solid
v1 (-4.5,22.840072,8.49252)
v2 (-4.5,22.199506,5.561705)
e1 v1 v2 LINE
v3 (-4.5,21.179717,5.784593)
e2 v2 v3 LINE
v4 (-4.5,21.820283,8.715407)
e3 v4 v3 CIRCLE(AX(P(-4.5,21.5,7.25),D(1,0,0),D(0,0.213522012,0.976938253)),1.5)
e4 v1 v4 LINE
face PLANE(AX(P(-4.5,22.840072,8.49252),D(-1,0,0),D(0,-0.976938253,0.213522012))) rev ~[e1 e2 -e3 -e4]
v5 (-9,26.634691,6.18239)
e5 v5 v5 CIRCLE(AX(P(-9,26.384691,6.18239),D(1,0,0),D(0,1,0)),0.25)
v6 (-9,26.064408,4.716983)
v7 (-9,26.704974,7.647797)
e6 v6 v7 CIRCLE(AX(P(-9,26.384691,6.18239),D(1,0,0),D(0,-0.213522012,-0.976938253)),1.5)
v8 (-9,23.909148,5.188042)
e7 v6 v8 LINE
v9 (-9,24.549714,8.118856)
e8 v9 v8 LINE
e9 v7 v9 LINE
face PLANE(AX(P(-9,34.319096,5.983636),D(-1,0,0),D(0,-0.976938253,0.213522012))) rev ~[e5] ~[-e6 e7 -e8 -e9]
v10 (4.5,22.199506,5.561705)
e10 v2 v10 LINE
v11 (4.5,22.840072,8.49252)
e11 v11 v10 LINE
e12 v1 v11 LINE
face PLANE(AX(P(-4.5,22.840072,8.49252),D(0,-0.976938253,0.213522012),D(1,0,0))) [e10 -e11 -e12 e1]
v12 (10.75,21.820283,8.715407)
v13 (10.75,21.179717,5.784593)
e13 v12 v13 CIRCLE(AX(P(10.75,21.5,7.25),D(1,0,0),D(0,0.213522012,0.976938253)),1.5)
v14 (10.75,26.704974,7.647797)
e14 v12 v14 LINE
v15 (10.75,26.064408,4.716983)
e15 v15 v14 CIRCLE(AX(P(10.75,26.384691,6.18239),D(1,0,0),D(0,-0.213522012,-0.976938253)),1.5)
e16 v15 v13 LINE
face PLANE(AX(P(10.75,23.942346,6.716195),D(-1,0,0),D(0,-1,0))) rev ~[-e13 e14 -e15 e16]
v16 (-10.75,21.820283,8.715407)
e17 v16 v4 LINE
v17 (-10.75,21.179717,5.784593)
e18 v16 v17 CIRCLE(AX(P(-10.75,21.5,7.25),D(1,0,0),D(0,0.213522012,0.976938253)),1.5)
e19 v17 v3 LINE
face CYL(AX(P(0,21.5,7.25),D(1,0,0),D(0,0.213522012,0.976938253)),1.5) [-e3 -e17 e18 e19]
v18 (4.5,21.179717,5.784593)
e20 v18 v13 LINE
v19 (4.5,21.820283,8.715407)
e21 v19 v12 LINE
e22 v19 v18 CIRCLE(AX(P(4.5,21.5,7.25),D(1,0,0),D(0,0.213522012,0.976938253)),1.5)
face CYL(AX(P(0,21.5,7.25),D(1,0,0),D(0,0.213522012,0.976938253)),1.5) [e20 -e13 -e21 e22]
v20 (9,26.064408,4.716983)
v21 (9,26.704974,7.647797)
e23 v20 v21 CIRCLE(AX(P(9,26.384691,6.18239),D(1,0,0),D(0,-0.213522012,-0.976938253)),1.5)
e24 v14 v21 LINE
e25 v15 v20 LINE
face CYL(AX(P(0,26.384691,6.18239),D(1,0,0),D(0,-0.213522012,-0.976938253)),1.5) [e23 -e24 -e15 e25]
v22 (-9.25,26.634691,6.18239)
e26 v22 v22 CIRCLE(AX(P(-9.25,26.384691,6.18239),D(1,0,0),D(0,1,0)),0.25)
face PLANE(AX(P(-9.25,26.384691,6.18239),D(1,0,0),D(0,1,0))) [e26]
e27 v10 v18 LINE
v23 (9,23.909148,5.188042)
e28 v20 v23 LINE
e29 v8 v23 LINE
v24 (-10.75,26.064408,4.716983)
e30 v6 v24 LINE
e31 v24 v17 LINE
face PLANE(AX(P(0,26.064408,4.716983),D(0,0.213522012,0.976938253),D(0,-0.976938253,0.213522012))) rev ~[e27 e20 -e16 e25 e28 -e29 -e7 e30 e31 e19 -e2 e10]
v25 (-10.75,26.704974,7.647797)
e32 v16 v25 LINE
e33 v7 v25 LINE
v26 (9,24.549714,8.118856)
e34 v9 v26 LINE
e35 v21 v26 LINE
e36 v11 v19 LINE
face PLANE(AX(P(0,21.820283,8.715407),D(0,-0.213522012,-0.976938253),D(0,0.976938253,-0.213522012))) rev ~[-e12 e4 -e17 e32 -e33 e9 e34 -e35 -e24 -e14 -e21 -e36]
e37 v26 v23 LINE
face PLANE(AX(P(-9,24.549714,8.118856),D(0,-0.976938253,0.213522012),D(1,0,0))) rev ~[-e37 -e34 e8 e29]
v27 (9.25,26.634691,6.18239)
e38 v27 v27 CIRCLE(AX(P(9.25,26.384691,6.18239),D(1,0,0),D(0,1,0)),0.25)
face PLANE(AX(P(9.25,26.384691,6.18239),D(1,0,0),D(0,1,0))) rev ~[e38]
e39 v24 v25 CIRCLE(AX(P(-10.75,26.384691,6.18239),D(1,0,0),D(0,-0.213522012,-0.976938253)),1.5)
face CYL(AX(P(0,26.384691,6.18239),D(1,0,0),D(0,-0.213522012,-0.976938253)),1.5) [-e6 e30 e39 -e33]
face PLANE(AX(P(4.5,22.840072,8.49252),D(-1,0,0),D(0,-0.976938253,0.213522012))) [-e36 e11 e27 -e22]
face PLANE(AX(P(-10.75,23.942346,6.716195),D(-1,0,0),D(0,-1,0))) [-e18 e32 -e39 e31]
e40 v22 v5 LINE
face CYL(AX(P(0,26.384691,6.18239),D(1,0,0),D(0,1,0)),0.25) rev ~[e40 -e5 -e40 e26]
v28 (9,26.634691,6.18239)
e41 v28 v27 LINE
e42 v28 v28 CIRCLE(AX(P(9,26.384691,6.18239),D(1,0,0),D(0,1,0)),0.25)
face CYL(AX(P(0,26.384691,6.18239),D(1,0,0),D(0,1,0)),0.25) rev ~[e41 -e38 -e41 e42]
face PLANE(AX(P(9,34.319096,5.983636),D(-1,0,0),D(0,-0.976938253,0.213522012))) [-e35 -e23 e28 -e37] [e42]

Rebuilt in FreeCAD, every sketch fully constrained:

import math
import FreeCAD as App
import Part
import Sketcher


def add_polygon(sketch, points):
    """Adds a closed chain of lines whose ends are joined by coincident constraints."""
    first, n = sketch.GeometryCount, len(points)
    for a, b in zip(points, points[1:] + points[:1]):
        sketch.addGeometry(Part.LineSegment(App.Vector(*a, 0), App.Vector(*b, 0)), False)
    for i in range(n):
        sketch.addConstraint(Sketcher.Constraint("Coincident", first + i, 2, first + (i + 1) % n, 1))

doc = App.newDocument("Part")
params = doc.addObject("Spreadsheet::Sheet", "Params")
for row, (alias, value) in enumerate([
    ("sketch1_radius", "1.5 mm"),
    ("sketch1_length", "5 mm"),
    ("pad1_length", "21.5 mm"),
    ("sketch2_width", "10 mm"),
    ("sketch2_height", "9 mm"),
    ("sketch2_height2", "18 mm"),
    ("sketch2_width2", "20.5 mm"),
    ("pocket1_length", "5 mm"),
    ("sketch3_diameter", "0.5 mm"),
    ("pocket2_length", "18.5 mm"),
], start=1):
    params.set(f"A{row}", alias)
    params.set(f"B{row}", "=" + value)
    params.setAlias(f"B{row}", alias)

body = doc.addObject("PartDesign::Body", "Body")

sketch1 = body.newObject("Sketcher::SketchObject", "Sketch")
sketch1.AttachmentSupport = (doc.getObject("YZ_Plane"), [""])
sketch1.MapMode = "FlatFace"
sketch1.addGeometry([
    Part.LineSegment(App.Vector(26.7, 7.6, 0), App.Vector(21.8, 8.7, 0)),
    Part.ArcOfCircle(Part.Circle(App.Vector(21.5, 7.2, 0), App.Vector(0, 0, 1), 1.5), math.radians(78), math.radians(258)),
    Part.LineSegment(App.Vector(21.2, 5.8, 0), App.Vector(26.1, 4.7, 0)),
    Part.ArcOfCircle(Part.Circle(App.Vector(26.4, 6.2, 0), App.Vector(0, 0, 1), 1.5), math.radians(-102), math.radians(78)),
], False)
sketch1.addConstraint([
    Sketcher.Constraint("Tangent", 0, 2, 1, 1),
    Sketcher.Constraint("Tangent", 1, 2, 2, 1),
    Sketcher.Constraint("Tangent", 2, 2, 3, 1),
    Sketcher.Constraint("Tangent", 3, 2, 0, 1),
    Sketcher.Constraint("Equal", 1, 3),
    Sketcher.Constraint("Radius", 1, 1.5),
    Sketcher.Constraint("Distance", 0, 5.0),
    Sketcher.Constraint("DistanceX", -1, 1, 1, 3, 21.5),
    Sketcher.Constraint("DistanceY", -1, 1, 1, 3, 7.25),
    Sketcher.Constraint("DistanceX", -1, 1, 3, 3, 26.384691),
])
sketch1.setExpression("Constraints[5]", "Params.sketch1_radius")
sketch1.setExpression("Constraints[6]", "Params.sketch1_length")
pad1 = body.newObject("PartDesign::Pad", "Pad")
pad1.Profile = sketch1
pad1.setExpression("Length", "Params.pad1_length")
pad1.Midplane = True

sketch2 = body.newObject("Sketcher::SketchObject", "Sketch001")
sketch2.Placement = App.Placement(App.Vector(0, 2.812838, 12.869721), App.Rotation(App.Vector(0, -0.976938253, 0.213522013), App.Vector(1, 0, 0), App.Vector(0, 0.213522013, 0.976938253), "ZXY"))
add_polygon(sketch2, [(-21, 5), (-21, -5), (0, -5), (0, 5)])
add_polygon(sketch2, [(-32, 9), (-32, -9), (-22, -9), (-22, 9)])
sketch2.addConstraint([
    Sketcher.Constraint("Vertical", 0),
    Sketcher.Constraint("Horizontal", 1),
    Sketcher.Constraint("Vertical", 2),
    Sketcher.Constraint("Horizontal", 3),
    Sketcher.Constraint("Vertical", 4),
    Sketcher.Constraint("Horizontal", 5),
    Sketcher.Constraint("Vertical", 6),
    Sketcher.Constraint("Horizontal", 7),
    Sketcher.Constraint("Symmetric", 1, 2, 2, 2, -1, 1),
    Sketcher.Constraint("DistanceX", 5, 1, 5, 2, 10.0),
    Sketcher.Constraint("DistanceY", 0, 2, 0, 1, 9.0),
    Sketcher.Constraint("DistanceY", 4, 2, 4, 1, 18.0),
    Sketcher.Constraint("DistanceX", 1, 1, 1, 2, 20.5),
    Sketcher.Constraint("DistanceY", 4, 2, -1, 1, 9.0),
    Sketcher.Constraint("DistanceX", 4, 2, -1, 1, 32.25),
])
sketch2.setExpression("Constraints[17]", "Params.sketch2_width")
sketch2.setExpression("Constraints[18]", "Params.sketch2_height")
sketch2.setExpression("Constraints[19]", "Params.sketch2_height2")
sketch2.setExpression("Constraints[20]", "Params.sketch2_width2")
pocket1 = body.newObject("PartDesign::Pocket", "Pocket")
pocket1.Profile = sketch2
pocket1.setExpression("Length", "Params.pocket1_length")

sketch3 = body.newObject("Sketcher::SketchObject", "Sketch002")
sketch3.AttachmentSupport = (doc.getObject("YZ_Plane"), [""])
sketch3.MapMode = "FlatFace"
sketch3.addGeometry(Part.Circle(App.Vector(26.38, 6.18, 0), App.Vector(0, 0, 1), 0.25), False)
sketch3.addConstraint([
    Sketcher.Constraint("Diameter", 0, 0.5),
    Sketcher.Constraint("DistanceX", -1, 1, 0, 3, 26.384691),
    Sketcher.Constraint("DistanceY", -1, 1, 0, 3, 6.18239),
])
sketch3.setExpression("Constraints[0]", "Params.sketch3_diameter")
pocket2 = body.newObject("PartDesign::Pocket", "Pocket001")
pocket2.Profile = sketch3
pocket2.setExpression("Length", "Params.pocket2_length")
pocket2.Midplane = True

doc.recompute()
